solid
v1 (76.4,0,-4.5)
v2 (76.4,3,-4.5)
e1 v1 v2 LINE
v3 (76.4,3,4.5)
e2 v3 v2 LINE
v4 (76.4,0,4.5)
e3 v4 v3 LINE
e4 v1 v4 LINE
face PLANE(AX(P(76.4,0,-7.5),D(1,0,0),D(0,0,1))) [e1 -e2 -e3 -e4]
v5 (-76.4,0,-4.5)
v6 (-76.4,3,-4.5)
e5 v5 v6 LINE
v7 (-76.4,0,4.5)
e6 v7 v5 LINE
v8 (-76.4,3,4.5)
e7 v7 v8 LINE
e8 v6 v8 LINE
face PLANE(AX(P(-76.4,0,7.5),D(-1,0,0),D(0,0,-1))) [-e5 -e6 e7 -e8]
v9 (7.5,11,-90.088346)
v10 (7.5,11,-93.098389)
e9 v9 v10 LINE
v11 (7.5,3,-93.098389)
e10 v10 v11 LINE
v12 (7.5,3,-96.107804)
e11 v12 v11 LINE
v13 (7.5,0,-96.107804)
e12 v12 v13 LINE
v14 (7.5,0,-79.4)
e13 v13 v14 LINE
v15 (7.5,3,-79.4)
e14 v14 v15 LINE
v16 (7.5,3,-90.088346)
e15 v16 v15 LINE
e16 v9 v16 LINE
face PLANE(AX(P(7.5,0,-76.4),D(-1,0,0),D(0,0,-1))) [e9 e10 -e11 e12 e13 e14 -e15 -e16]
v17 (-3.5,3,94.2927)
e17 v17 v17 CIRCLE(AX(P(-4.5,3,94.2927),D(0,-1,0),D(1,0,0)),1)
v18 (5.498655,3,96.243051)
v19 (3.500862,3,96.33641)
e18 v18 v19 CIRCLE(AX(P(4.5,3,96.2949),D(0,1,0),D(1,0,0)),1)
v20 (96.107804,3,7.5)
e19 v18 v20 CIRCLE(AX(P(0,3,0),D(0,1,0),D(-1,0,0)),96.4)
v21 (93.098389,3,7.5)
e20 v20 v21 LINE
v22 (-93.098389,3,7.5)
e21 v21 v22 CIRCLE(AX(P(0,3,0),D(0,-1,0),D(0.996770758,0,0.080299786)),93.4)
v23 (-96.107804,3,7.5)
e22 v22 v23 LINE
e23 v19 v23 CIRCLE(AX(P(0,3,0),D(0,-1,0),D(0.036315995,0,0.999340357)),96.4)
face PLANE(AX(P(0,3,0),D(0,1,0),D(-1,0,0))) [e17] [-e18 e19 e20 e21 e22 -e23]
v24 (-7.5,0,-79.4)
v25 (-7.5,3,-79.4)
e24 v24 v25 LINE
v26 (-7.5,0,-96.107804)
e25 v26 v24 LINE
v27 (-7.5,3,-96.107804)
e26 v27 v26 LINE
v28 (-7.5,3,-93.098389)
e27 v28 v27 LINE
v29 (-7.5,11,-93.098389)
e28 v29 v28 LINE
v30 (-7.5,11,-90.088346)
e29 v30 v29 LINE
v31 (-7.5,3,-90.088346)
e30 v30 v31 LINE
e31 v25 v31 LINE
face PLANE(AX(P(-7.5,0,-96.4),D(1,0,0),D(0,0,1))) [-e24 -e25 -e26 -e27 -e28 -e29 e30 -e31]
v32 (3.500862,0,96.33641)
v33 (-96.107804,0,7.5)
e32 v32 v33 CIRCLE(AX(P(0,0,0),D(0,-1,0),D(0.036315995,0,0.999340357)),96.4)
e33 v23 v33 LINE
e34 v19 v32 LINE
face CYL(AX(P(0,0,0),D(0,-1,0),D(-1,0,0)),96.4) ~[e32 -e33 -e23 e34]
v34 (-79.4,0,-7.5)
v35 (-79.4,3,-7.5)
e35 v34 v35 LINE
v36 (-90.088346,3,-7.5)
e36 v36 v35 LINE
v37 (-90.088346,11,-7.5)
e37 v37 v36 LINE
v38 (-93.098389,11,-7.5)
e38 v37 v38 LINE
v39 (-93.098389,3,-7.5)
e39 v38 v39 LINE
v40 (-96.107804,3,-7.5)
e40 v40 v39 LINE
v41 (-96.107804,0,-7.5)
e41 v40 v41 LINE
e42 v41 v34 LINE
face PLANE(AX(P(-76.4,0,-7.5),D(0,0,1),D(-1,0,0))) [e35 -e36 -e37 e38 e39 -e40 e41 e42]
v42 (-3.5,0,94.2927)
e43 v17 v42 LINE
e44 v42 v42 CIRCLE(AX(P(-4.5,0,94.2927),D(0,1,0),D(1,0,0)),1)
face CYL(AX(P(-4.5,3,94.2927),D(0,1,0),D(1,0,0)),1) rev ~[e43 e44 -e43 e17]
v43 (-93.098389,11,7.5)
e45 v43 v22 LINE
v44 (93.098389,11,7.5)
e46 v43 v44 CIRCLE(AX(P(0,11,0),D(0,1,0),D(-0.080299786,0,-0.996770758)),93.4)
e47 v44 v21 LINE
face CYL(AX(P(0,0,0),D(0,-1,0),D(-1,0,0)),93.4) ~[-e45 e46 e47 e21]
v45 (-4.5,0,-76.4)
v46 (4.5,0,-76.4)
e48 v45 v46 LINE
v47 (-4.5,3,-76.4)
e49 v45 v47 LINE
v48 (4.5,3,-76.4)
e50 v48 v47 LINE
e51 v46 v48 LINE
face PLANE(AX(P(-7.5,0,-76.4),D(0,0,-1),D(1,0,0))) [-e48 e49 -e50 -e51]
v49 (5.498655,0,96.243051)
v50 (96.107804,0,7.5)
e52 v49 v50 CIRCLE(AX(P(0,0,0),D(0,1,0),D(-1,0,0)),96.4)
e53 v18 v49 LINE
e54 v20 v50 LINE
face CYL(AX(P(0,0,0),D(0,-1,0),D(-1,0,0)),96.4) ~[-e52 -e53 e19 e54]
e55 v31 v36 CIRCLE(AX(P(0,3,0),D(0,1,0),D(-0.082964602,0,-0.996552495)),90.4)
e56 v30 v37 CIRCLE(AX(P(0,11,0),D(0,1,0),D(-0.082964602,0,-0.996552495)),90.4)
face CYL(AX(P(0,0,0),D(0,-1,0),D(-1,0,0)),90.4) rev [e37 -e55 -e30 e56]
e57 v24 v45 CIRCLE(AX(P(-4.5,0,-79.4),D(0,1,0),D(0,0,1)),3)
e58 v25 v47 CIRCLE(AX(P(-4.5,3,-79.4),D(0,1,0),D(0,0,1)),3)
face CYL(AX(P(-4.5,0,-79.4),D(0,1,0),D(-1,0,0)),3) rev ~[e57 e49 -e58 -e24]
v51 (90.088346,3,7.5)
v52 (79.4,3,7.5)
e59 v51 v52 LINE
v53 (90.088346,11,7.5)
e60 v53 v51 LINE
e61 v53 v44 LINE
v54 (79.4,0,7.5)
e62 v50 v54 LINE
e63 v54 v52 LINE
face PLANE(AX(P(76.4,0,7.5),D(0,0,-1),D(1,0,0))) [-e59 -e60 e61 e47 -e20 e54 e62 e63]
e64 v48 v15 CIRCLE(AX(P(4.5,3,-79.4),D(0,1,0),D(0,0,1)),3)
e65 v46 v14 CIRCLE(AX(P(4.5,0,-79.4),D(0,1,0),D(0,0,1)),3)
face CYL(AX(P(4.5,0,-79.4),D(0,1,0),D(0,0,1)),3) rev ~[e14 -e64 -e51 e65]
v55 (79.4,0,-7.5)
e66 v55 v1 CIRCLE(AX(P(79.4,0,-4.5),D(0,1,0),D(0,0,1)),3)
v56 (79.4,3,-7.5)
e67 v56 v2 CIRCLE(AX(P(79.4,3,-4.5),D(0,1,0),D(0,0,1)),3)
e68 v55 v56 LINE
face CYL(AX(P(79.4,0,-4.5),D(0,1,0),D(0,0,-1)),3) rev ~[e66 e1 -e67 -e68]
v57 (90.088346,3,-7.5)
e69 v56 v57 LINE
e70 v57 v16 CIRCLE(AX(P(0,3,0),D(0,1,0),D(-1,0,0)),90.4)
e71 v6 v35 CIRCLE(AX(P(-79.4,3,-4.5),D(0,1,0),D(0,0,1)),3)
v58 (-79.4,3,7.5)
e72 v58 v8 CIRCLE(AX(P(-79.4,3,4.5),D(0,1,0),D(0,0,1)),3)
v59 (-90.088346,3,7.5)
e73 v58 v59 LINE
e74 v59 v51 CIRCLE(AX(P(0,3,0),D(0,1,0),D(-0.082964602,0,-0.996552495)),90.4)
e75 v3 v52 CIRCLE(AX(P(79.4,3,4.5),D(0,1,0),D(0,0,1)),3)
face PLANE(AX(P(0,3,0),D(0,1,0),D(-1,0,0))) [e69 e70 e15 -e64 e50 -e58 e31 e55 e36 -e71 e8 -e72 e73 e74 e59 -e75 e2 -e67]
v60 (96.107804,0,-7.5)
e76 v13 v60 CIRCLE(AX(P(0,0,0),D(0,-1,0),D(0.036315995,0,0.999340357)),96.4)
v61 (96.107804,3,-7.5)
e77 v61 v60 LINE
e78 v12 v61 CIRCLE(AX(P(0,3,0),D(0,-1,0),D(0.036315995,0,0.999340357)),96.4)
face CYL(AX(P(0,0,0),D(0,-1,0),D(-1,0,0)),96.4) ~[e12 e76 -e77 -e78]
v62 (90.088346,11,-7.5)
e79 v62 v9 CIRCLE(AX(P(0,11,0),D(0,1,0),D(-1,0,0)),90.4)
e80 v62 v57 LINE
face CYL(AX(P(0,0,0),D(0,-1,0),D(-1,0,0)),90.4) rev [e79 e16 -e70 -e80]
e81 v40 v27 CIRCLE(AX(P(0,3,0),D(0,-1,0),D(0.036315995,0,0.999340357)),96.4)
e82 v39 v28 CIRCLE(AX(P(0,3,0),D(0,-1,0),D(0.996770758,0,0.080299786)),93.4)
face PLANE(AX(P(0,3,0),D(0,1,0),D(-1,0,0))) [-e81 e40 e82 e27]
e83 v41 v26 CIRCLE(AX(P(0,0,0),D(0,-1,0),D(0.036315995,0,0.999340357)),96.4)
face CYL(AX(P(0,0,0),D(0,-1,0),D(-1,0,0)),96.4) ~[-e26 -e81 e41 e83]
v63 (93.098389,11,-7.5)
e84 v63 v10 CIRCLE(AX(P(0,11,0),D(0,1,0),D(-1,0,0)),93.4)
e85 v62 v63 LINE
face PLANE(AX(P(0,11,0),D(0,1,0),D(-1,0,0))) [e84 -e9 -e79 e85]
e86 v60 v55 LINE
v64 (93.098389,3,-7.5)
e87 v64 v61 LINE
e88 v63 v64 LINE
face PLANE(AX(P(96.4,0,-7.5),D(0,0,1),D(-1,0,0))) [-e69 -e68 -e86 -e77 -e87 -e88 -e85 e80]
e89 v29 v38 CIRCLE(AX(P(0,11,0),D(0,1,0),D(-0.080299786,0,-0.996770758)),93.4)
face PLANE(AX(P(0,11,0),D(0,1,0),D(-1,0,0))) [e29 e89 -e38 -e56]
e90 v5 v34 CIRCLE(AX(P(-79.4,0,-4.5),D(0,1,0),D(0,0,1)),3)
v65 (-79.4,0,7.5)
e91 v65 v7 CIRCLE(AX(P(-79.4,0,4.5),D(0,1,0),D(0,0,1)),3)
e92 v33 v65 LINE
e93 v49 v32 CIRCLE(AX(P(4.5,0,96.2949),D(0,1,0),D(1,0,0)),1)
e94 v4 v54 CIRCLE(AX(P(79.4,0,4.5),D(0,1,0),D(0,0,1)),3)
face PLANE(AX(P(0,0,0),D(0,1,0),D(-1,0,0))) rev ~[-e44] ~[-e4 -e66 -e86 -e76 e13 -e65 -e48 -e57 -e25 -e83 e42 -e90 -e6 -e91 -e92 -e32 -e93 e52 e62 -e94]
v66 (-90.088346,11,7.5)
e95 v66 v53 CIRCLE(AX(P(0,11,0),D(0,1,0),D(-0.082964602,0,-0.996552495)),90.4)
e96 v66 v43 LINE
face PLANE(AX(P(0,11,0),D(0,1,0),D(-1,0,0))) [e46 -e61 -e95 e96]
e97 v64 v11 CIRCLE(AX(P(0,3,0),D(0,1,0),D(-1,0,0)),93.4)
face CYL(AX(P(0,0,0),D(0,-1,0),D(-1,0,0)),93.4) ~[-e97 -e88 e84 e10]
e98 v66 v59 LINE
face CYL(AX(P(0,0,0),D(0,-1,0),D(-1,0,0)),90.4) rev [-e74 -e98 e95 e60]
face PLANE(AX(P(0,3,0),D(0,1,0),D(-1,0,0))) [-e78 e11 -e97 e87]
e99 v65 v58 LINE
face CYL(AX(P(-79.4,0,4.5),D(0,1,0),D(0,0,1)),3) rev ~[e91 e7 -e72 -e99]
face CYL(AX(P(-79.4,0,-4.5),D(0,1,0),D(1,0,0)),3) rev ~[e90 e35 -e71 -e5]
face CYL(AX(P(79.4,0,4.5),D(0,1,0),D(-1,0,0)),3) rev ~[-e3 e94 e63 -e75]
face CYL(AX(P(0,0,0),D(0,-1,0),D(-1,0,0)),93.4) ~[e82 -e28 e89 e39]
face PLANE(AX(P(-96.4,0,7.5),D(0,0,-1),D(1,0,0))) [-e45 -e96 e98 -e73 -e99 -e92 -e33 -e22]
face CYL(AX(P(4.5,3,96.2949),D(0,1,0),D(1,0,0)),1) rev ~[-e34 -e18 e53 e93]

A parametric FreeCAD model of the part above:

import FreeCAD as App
import Part
import Sketcher


def edges_at(feature, points):
    """Names of the edges that pass closest to the given points."""
    edges = feature.Shape.Edges
    near = lambda p: min(range(len(edges)), key=lambda i: edges[i].distToShape(Part.Vertex(*p))[0])
    return sorted({f"Edge{near(p) + 1}" for p in points})

doc = App.newDocument("Part")
params = doc.addObject("Spreadsheet::Sheet", "Params")
for row, (alias, value) in enumerate([
    ("sketch1_diameter", "186.8 mm"),
    ("sketch1_diameter2", "180.8 mm"),
    ("pad1_length", "11 mm"),
    ("sketch2_diameter", "186.8 mm"),
    ("sketch2_diameter2", "192.8 mm"),
    ("pad2_length", "3 mm"),
    ("sketch3_diameter", "2 mm"),
    ("pocket1_length", "3 mm"),
    ("sketch4_diameter", "180.8 mm"),
    ("pad3_length", "3 mm"),
    ("sketch5_width", "20 mm"),
    ("sketch5_height", "15 mm"),
    ("pocket2_length", "11 mm"),
    ("fillet_radius", "3 mm"),
], start=1):
    params.set(f"A{row}", alias)
    params.set(f"B{row}", "=" + value)
    params.setAlias(f"B{row}", alias)

body = doc.addObject("PartDesign::Body", "Body")

# Sketch on XZ plane
sketch1 = body.newObject("Sketcher::SketchObject", "Sketch")
sketch1.AttachmentSupport = (doc.getObject("XZ_Plane"), [""])
sketch1.MapMode = "FlatFace"
sketch1.addGeometry([
    Part.Circle(App.Vector(0, 0, 0), App.Vector(0, 0, 1), 93),
    Part.Circle(App.Vector(0, 0, 0), App.Vector(0, 0, 1), 90),
], False)
sketch1.addConstraint([
    Sketcher.Constraint("Coincident", 0, 3, -1, 1),
    Sketcher.Constraint("Coincident", 1, 3, -1, 1),
    Sketcher.Constraint("Diameter", 0, 186.8),
    Sketcher.Constraint("Diameter", 1, 180.8),
])
sketch1.setExpression("Constraints[2]", "Params.sketch1_diameter")
sketch1.setExpression("Constraints[3]", "Params.sketch1_diameter2")
pad1 = body.newObject("PartDesign::Pad", "Pad")
pad1.Profile = sketch1
pad1.setExpression("Length", "Params.pad1_length")
pad1.Reversed = True

# Sketch on XZ plane
sketch2 = body.newObject("Sketcher::SketchObject", "Sketch001")
sketch2.AttachmentSupport = (doc.getObject("XZ_Plane"), [""])
sketch2.MapMode = "FlatFace"
sketch2.addGeometry([
    Part.Circle(App.Vector(0, 0, 0), App.Vector(0, 0, 1), 96),
    Part.Circle(App.Vector(0, 0, 0), App.Vector(0, 0, 1), 93),
], False)
sketch2.addConstraint([
    Sketcher.Constraint("Coincident", 0, 3, -1, 1),
    Sketcher.Constraint("Coincident", 1, 3, -1, 1),
    Sketcher.Constraint("Diameter", 1, 186.8),
    Sketcher.Constraint("Diameter", 0, 192.8),
])
sketch2.setExpression("Constraints[2]", "Params.sketch2_diameter")
sketch2.setExpression("Constraints[3]", "Params.sketch2_diameter2")
pad2 = body.newObject("PartDesign::Pad", "Pad001")
pad2.Profile = sketch2
pad2.setExpression("Length", "Params.pad2_length")
pad2.Reversed = True

# Sketch on XZ plane
sketch3 = body.newObject("Sketcher::SketchObject", "Sketch002")
sketch3.AttachmentSupport = (doc.getObject("XZ_Plane"), [""])
sketch3.MapMode = "FlatFace"
sketch3.AttachmentOffset = App.Placement(App.Vector(0, 0, -3), App.Rotation())
sketch3.addGeometry([
    Part.Circle(App.Vector(-4.5, 94.3, 0), App.Vector(0, 0, 1), 1),
    Part.Circle(App.Vector(4.5, 96.3, 0), App.Vector(0, 0, 1), 1),
], False)
sketch3.addConstraint([
    Sketcher.Constraint("Equal", 0, 1),
    Sketcher.Constraint("Diameter", 0, 2.0),
    Sketcher.Constraint("DistanceX", 0, 3, -1, 1, 4.5),
    Sketcher.Constraint("DistanceX", -1, 1, 1, 3, 4.5),
    Sketcher.Constraint("DistanceY", -1, 1, 1, 3, 96.295),
    Sketcher.Constraint("DistanceY", -1, 1, 0, 3, 94.2927),
])
sketch3.setExpression("Constraints[1]", "Params.sketch3_diameter")
pocket1 = body.newObject("PartDesign::Pocket", "Pocket")
pocket1.Profile = sketch3
pocket1.setExpression("Length", "Params.pocket1_length")
pocket1.Reversed = True

# Sketch on XZ plane
sketch4 = body.newObject("Sketcher::SketchObject", "Sketch003")
sketch4.AttachmentSupport = (doc.getObject("XZ_Plane"), [""])
sketch4.MapMode = "FlatFace"
sketch4.addGeometry(Part.Circle(App.Vector(0, 0, 0), App.Vector(0, 0, 1), 90), False)
sketch4.addConstraint([
    Sketcher.Constraint("Coincident", 0, 3, -1, 1),
    Sketcher.Constraint("Diameter", 0, 180.8),
])
sketch4.setExpression("Constraints[1]", "Params.sketch4_diameter")
pad3 = body.newObject("PartDesign::Pad", "Pad002")
pad3.Profile = sketch4
pad3.setExpression("Length", "Params.pad3_length")
pad3.Reversed = True

# Sketch on XZ plane
sketch5 = body.newObject("Sketcher::SketchObject", "Sketch004")
sketch5.AttachmentSupport = (doc.getObject("XZ_Plane"), [""])
sketch5.MapMode = "FlatFace"
sketch5.addGeometry([
    Part.LineSegment(App.Vector(96, -8, 0), App.Vector(96, 8, 0)),
    Part.LineSegment(App.Vector(96, 8, 0), App.Vector(76, 8, 0)),
    Part.LineSegment(App.Vector(76, 8, 0), App.Vector(76, -8, 0)),
    Part.LineSegment(App.Vector(76, -8, 0), App.Vector(96, -8, 0)),
], False)
sketch5.addConstraint([
    Sketcher.Constraint("Coincident", 0, 2, 1, 1),
    Sketcher.Constraint("Coincident", 1, 2, 2, 1),
    Sketcher.Constraint("Coincident", 2, 2, 3, 1),
    Sketcher.Constraint("Coincident", 3, 2, 0, 1),
    Sketcher.Constraint("Vertical", 0),
    Sketcher.Constraint("Horizontal", 1),
    Sketcher.Constraint("Vertical", 2),
    Sketcher.Constraint("Horizontal", 3),
    Sketcher.Constraint("DistanceX", 1, 2, 1, 1, 20.0),
    Sketcher.Constraint("DistanceY", 0, 1, 0, 2, 15.0),
    Sketcher.Constraint("DistanceX", -1, 1, 0, 2, 96.4),
    Sketcher.Constraint("DistanceY", -1, 1, 0, 2, 7.5),
])
sketch5.setExpression("Constraints[8]", "Params.sketch5_width")
sketch5.setExpression("Constraints[9]", "Params.sketch5_height")
pocket2 = body.newObject("PartDesign::Pocket", "Pocket001")
pocket2.Profile = sketch5
pocket2.setExpression("Length", "Params.pocket2_length")
doc.recompute()

polarpattern = body.newObject("PartDesign::PolarPattern", "PolarPattern")
polarpattern.Originals = [pocket2]
polarpattern.Axis = (doc.getObject("Y_Axis"), [""])
polarpattern.Angle = 180
polarpattern.Occurrences = 3
body.Tip = polarpattern
doc.recompute()

fillet = body.newObject("PartDesign::Fillet", "Fillet")
fillet.Base = (polarpattern, edges_at(polarpattern, [
    (76.4, 1.5, 7.5),
    (76.4, 1.5, -7.5),
    (-76.4, 1.5, 7.5),
    (-76.4, 1.5, -7.5),
    (7.5, 1.5, -76.4),
    (-7.5, 1.5, -76.4),
]))
fillet.setExpression("Radius", "Params.fillet_radius")

doc.recompute()
